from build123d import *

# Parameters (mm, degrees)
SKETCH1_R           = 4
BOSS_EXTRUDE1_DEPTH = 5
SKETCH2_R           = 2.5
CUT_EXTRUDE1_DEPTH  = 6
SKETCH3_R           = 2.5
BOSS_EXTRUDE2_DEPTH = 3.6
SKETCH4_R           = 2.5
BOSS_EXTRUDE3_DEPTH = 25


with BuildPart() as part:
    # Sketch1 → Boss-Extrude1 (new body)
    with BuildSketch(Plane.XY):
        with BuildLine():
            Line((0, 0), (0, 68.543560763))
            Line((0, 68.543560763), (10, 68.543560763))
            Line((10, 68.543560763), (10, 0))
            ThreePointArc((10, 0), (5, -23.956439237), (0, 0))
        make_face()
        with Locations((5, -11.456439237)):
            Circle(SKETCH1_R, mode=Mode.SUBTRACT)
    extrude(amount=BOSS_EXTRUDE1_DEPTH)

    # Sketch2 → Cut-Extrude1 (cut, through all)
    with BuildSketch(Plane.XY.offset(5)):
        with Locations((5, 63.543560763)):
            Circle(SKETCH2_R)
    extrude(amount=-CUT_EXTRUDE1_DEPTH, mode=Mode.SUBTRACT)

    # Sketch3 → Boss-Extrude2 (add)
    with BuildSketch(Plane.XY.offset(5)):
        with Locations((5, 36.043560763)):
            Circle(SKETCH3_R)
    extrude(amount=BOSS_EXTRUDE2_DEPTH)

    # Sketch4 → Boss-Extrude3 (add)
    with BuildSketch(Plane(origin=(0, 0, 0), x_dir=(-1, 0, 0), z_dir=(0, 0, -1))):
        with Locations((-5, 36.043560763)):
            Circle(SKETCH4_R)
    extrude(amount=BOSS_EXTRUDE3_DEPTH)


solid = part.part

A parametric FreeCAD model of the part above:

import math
import FreeCAD as App
import Part
import Sketcher
Q = App.Units.Quantity

doc = App.newDocument("Part")
params = doc.addObject("Spreadsheet::Sheet", "Params")
for row, (alias, value) in enumerate([
    ("sketch1_diameter", "8 mm"),
    ("sketch1_radius", "12.5 mm"),
    ("sketch1_width", "10 mm"),
    ("pad1_length", "5 mm"),
    ("sketch2_diameter", "5 mm"),
    ("sketch3_diameter", "5 mm"),
    ("pad2_length", "3.6 mm"),
    ("sketch4_diameter", "5 mm"),
    ("pad3_length", "25 mm"),
], start=1):
    params.set(f"A{row}", alias)
    params.set(f"B{row}", "=" + value)
    params.setAlias(f"B{row}", alias)

body = doc.addObject("PartDesign::Body", "Body")

# Sketch on XY plane
sketch1 = body.newObject("Sketcher::SketchObject", "Sketch")
sketch1.AttachmentSupport = (doc.getObject("XY_Plane"), [""])
sketch1.MapMode = "FlatFace"
sketch1.addGeometry([
    Part.LineSegment(App.Vector(0, 68.5, 0), App.Vector(0, 0, 0)),  # 0
    Part.ArcOfCircle(Part.Circle(App.Vector(5, -11.5, 0), App.Vector(0, 0, 1), 12.5), math.radians(114), math.radians(426)),  # 1
    Part.LineSegment(App.Vector(10, 0, 0), App.Vector(10, 68.5, 0)),  # 2
    Part.LineSegment(App.Vector(10, 68.5, 0), App.Vector(0, 68.5, 0)),  # 3
    Part.Circle(App.Vector(5, -11.5, 0), App.Vector(0, 0, 1), 4),  # 4
], False)
sketch1.addConstraint([
    Sketcher.Constraint("Coincident", 0, 2, 1, 1),
    Sketcher.Constraint("Coincident", 1, 2, 2, 1),
    Sketcher.Constraint("Coincident", 2, 2, 3, 1),
    Sketcher.Constraint("Coincident", 3, 2, 0, 1),
    Sketcher.Constraint("Vertical", 0),
    Sketcher.Constraint("Vertical", 2),
    Sketcher.Constraint("Horizontal", 3),
    Sketcher.Constraint("Coincident", 0, 2, -1, 1),
    Sketcher.Constraint("Coincident", 4, 3, 1, 3),
    Sketcher.Constraint("PointOnObject", 1, 2, -1),
    Sketcher.Constraint("Diameter", 4, Q("8 mm")),
    Sketcher.Constraint("Radius", 1, Q("12.5 mm")),
    Sketcher.Constraint("DistanceX", 3, 2, 3, 1, Q("10 mm")),
    Sketcher.Constraint("DistanceY", 1, 3, 2, 2, Q("80 mm")),
])
sketch1.setExpression("Constraints[10]", "Params.sketch1_diameter")
sketch1.setExpression("Constraints[11]", "Params.sketch1_radius")
sketch1.setExpression("Constraints[12]", "Params.sketch1_width")
pad1 = body.newObject("PartDesign::Pad", "Pad")
pad1.Profile = sketch1
pad1.setExpression("Length", "Params.pad1_length")

# Sketch on XY plane
sketch2 = body.newObject("Sketcher::SketchObject", "Sketch001")
sketch2.AttachmentSupport = (doc.getObject("XY_Plane"), [""])
sketch2.MapMode = "FlatFace"
sketch2.AttachmentOffset = App.Placement(App.Vector(0, 0, 5), App.Rotation())
sketch2.addGeometry(Part.Circle(App.Vector(5, 63.5, 0), App.Vector(0, 0, 1), 2.5), False)
sketch2.addConstraint([
    Sketcher.Constraint("Diameter", 0, Q("5 mm")),
    Sketcher.Constraint("DistanceX", -1, 1, 0, 3, Q("5 mm")),
    Sketcher.Constraint("DistanceY", -1, 1, 0, 3, Q("63.543561 mm")),
])
sketch2.setExpression("Constraints[0]", "Params.sketch2_diameter")
pocket1 = body.newObject("PartDesign::Pocket", "Pocket")
pocket1.Profile = sketch2
pocket1.Type = "ThroughAll"

# Sketch on XY plane
sketch3 = body.newObject("Sketcher::SketchObject", "Sketch002")
sketch3.AttachmentSupport = (doc.getObject("XY_Plane"), [""])
sketch3.MapMode = "FlatFace"
sketch3.AttachmentOffset = App.Placement(App.Vector(0, 0, 5), App.Rotation())
sketch3.addGeometry(Part.Circle(App.Vector(5, 36, 0), App.Vector(0, 0, 1), 2.5), False)
sketch3.addConstraint([
    Sketcher.Constraint("Diameter", 0, Q("5 mm")),
    Sketcher.Constraint("DistanceX", -1, 1, 0, 3, Q("5 mm")),
    Sketcher.Constraint("DistanceY", -1, 1, 0, 3, Q("36.043561 mm")),
])
sketch3.setExpression("Constraints[0]", "Params.sketch3_diameter")
pad2 = body.newObject("PartDesign::Pad", "Pad001")
pad2.Profile = sketch3
pad2.setExpression("Length", "Params.pad2_length")

# Sketch on XY plane
sketch4 = body.newObject("Sketcher::SketchObject", "Sketch003")
sketch4.AttachmentSupport = (doc.getObject("XY_Plane"), [""])
sketch4.MapMode = "FlatFace"
sketch4.addGeometry(Part.Circle(App.Vector(5, 36, 0), App.Vector(0, 0, 1), 2.5), False)
sketch4.addConstraint([
    Sketcher.Constraint("Diameter", 0, Q("5 mm")),
    Sketcher.Constraint("DistanceX", -1, 1, 0, 3, Q("5 mm")),
    Sketcher.Constraint("DistanceY", -1, 1, 0, 3, Q("36.043561 mm")),
])
sketch4.setExpression("Constraints[0]", "Params.sketch4_diameter")
pad3 = body.newObject("PartDesign::Pad", "Pad002")
pad3.Profile = sketch4
pad3.setExpression("Length", "Params.pad3_length")
pad3.Reversed = True

doc.recompute()
